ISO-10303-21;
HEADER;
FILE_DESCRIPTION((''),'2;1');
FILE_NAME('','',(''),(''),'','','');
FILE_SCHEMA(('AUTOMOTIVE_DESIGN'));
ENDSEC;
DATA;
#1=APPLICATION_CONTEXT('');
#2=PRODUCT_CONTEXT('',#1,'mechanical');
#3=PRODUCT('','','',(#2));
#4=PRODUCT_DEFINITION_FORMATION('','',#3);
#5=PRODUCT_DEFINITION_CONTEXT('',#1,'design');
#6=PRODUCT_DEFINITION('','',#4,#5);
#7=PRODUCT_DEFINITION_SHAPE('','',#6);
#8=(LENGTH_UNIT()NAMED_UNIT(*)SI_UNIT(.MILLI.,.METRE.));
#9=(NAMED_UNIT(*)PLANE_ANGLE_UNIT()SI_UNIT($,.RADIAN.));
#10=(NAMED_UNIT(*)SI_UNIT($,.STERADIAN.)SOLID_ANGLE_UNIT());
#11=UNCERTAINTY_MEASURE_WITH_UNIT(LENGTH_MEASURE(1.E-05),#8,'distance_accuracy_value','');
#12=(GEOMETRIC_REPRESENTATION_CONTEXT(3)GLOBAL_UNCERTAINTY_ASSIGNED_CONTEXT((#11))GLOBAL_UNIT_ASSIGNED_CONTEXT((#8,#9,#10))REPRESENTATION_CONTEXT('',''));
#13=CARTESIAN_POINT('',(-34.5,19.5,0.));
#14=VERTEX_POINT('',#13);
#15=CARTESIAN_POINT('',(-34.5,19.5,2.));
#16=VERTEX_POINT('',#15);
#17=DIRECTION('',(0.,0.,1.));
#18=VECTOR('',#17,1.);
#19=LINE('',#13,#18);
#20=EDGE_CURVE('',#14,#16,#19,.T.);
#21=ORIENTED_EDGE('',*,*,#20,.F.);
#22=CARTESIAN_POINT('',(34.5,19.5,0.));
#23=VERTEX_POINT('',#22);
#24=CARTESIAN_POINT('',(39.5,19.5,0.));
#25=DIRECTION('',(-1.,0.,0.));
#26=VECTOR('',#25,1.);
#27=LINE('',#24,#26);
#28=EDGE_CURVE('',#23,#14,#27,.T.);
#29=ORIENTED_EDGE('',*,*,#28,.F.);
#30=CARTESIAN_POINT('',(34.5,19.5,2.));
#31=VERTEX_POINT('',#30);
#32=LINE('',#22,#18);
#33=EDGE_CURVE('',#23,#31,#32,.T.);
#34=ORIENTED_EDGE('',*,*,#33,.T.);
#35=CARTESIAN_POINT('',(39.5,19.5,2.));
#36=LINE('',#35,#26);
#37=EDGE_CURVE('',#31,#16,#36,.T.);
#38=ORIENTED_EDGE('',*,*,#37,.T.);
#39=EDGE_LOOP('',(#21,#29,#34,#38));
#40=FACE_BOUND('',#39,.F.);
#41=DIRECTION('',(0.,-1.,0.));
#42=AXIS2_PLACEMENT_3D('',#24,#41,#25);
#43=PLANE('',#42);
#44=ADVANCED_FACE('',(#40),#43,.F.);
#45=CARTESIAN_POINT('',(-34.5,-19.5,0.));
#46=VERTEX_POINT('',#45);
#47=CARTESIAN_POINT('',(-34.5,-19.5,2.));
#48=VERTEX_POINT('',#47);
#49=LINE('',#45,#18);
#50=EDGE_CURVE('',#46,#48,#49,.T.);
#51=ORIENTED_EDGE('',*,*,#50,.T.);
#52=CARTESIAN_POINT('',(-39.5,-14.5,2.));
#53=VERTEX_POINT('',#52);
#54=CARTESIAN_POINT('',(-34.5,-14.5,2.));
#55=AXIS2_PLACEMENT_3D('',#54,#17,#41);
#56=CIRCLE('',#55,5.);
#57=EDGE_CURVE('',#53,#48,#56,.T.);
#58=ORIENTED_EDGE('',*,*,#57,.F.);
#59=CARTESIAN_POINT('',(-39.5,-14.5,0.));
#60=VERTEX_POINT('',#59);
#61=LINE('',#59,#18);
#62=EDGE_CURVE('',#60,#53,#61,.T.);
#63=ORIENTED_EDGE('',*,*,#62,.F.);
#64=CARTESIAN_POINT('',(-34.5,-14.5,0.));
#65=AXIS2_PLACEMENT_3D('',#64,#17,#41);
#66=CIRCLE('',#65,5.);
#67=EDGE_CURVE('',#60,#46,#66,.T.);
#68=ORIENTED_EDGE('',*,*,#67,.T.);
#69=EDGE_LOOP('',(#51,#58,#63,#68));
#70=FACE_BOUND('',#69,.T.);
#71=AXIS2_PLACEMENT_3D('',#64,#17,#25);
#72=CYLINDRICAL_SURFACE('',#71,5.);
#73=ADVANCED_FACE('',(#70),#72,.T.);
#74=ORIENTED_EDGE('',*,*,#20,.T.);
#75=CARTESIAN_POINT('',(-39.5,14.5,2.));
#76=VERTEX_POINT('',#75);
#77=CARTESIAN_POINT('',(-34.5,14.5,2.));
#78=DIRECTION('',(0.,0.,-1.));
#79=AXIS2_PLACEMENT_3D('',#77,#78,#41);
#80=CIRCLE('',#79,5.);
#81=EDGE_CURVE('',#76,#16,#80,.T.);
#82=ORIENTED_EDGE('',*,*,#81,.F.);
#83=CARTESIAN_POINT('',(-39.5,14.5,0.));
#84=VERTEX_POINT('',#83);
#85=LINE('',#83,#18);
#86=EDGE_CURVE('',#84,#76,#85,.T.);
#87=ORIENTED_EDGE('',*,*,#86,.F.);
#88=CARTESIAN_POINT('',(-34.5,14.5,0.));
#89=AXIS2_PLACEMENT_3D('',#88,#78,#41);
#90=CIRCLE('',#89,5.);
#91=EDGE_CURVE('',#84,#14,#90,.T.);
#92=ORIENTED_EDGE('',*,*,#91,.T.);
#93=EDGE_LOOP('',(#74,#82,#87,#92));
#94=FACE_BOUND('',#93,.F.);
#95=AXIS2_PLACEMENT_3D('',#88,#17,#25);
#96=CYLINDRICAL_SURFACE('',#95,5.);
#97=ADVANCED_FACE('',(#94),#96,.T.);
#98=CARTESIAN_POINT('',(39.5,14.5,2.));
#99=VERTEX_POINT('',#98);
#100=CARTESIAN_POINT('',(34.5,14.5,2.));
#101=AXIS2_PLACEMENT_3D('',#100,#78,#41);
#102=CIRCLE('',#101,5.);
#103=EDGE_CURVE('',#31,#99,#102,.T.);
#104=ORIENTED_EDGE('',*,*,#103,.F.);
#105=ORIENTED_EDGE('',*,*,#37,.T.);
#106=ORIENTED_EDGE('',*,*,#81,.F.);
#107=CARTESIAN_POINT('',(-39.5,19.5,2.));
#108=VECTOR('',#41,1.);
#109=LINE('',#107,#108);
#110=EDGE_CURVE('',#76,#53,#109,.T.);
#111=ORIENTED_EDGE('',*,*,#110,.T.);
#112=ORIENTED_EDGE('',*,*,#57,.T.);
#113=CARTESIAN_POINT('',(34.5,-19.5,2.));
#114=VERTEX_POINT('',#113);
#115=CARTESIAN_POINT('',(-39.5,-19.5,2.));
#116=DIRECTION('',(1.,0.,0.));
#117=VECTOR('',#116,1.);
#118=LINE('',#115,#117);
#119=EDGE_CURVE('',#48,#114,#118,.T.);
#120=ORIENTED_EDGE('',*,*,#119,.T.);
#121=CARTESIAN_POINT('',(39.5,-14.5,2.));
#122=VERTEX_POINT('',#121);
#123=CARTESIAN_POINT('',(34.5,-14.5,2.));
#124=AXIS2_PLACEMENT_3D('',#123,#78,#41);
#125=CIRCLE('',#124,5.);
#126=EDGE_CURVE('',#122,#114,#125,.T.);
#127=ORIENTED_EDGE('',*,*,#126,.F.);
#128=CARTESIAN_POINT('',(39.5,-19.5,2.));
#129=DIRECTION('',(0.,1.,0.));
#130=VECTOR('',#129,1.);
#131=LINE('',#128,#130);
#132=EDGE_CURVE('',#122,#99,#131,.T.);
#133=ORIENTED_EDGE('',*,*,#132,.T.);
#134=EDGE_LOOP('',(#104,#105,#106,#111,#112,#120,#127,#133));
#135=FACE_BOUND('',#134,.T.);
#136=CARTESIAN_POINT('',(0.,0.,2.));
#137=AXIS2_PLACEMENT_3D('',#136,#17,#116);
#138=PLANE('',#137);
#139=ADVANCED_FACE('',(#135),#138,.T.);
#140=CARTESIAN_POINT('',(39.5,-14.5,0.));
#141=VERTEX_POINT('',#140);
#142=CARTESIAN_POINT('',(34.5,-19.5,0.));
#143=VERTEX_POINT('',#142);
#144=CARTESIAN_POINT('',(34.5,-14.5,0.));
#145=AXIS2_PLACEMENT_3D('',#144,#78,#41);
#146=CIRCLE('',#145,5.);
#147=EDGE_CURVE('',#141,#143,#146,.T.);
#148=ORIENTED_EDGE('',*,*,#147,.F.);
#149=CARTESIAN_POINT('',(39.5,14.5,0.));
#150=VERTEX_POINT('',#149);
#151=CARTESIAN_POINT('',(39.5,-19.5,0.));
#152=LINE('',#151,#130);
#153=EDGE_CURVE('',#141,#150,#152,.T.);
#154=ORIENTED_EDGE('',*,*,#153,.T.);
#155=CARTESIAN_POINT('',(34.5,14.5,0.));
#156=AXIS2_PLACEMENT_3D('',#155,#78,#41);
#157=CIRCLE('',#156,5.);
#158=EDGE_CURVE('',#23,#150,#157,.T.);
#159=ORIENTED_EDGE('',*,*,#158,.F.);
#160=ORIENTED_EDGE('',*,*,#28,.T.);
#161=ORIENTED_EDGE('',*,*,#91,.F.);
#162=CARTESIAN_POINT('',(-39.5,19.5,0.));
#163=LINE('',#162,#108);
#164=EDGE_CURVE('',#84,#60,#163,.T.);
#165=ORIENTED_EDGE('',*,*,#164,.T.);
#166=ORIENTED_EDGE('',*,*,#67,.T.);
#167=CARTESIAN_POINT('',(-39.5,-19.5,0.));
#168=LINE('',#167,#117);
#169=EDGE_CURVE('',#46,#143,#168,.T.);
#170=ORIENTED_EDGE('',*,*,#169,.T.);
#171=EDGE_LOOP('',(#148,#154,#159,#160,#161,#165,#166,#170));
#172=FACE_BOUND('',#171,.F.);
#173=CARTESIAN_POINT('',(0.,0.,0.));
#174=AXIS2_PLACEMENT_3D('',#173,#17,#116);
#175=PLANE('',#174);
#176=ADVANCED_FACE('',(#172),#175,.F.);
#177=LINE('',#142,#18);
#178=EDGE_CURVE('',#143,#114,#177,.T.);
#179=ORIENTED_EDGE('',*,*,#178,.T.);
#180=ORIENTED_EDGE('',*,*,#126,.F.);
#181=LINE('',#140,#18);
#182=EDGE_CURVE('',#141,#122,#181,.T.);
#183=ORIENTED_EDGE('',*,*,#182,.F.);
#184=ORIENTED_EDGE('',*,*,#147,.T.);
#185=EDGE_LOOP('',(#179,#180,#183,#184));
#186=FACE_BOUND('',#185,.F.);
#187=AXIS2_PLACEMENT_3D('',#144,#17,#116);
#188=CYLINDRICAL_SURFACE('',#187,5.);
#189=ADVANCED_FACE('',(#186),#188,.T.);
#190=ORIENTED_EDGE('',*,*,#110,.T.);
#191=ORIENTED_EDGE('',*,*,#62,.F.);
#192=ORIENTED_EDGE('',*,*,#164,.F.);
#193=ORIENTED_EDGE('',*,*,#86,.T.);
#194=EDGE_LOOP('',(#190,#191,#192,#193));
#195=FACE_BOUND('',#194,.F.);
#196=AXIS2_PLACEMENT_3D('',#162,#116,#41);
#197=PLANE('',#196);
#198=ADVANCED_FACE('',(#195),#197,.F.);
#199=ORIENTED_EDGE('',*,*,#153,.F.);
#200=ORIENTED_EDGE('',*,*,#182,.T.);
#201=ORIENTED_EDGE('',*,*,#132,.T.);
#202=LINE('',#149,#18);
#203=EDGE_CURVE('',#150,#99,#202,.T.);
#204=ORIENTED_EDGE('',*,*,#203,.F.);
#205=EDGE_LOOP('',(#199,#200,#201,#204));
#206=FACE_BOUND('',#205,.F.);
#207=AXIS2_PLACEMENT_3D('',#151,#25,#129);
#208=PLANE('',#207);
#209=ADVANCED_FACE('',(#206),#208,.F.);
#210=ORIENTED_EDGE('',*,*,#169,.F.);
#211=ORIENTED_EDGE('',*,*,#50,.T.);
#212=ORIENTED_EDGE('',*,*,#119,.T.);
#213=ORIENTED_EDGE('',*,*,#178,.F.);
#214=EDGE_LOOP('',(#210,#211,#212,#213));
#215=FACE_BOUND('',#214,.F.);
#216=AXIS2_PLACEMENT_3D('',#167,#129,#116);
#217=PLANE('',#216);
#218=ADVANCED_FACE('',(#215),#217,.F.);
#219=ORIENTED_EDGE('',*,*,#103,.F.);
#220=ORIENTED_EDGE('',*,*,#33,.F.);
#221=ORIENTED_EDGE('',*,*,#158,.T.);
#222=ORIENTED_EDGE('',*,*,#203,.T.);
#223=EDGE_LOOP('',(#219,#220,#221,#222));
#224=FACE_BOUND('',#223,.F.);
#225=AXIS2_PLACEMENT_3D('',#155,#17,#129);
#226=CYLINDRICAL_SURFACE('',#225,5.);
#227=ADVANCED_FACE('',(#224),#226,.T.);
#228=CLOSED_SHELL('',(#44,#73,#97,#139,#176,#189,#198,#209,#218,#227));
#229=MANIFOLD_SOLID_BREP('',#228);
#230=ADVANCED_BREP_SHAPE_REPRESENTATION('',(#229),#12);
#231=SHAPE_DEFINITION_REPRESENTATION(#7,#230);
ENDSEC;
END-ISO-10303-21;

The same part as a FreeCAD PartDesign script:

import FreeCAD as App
import Part
import Sketcher
Q = App.Units.Quantity


def edges_at(feature, points):
    """Names of the edges that pass closest to the given points."""
    edges = feature.Shape.Edges
    near = lambda p: min(range(len(edges)), key=lambda i: edges[i].distToShape(Part.Vertex(*p))[0])
    return sorted({f"Edge{near(p) + 1}" for p in points})


def add_polygon(sketch, points):
    """Adds a closed chain of lines whose ends are joined by coincident constraints."""
    first, n = sketch.GeometryCount, len(points)
    for a, b in zip(points, points[1:] + points[:1]):
        sketch.addGeometry(Part.LineSegment(App.Vector(*a, 0), App.Vector(*b, 0)), False)
    for i in range(n):
        sketch.addConstraint(Sketcher.Constraint("Coincident", first + i, 2, first + (i + 1) % n, 1))

doc = App.newDocument("Part")
body = doc.addObject("PartDesign::Body", "Body")

sketch1 = body.newObject("Sketcher::SketchObject", "Sketch")
sketch1.AttachmentSupport = (doc.getObject("XY_Plane"), [""])
sketch1.MapMode = "FlatFace"
add_polygon(sketch1, [(-40, 20), (-40, -20), (40, -20), (40, 20)])
sketch1.addConstraint([
    Sketcher.Constraint("Vertical", 0),
    Sketcher.Constraint("Horizontal", 1),
    Sketcher.Constraint("Vertical", 2),
    Sketcher.Constraint("Horizontal", 3),
    Sketcher.Constraint("Symmetric", 0, 2, 2, 2, -1, 1),
    Sketcher.Constraint("DistanceX", 1, 1, 1, 2, Q("79 mm")),
    Sketcher.Constraint("DistanceY", 0, 2, 0, 1, Q("39 mm")),
])
pad1 = body.newObject("PartDesign::Pad", "Pad")
pad1.Profile = sketch1
pad1.Length = 2
doc.recompute()

fillet = body.newObject("PartDesign::Fillet", "Fillet")
fillet.Base = (pad1, edges_at(pad1, [
    (39.5, -19.5, 1),
    (39.5, 19.5, 1),
    (-39.5, 19.5, 1),
    (-39.5, -19.5, 1),
]))
fillet.Radius = 5

doc.recompute()
